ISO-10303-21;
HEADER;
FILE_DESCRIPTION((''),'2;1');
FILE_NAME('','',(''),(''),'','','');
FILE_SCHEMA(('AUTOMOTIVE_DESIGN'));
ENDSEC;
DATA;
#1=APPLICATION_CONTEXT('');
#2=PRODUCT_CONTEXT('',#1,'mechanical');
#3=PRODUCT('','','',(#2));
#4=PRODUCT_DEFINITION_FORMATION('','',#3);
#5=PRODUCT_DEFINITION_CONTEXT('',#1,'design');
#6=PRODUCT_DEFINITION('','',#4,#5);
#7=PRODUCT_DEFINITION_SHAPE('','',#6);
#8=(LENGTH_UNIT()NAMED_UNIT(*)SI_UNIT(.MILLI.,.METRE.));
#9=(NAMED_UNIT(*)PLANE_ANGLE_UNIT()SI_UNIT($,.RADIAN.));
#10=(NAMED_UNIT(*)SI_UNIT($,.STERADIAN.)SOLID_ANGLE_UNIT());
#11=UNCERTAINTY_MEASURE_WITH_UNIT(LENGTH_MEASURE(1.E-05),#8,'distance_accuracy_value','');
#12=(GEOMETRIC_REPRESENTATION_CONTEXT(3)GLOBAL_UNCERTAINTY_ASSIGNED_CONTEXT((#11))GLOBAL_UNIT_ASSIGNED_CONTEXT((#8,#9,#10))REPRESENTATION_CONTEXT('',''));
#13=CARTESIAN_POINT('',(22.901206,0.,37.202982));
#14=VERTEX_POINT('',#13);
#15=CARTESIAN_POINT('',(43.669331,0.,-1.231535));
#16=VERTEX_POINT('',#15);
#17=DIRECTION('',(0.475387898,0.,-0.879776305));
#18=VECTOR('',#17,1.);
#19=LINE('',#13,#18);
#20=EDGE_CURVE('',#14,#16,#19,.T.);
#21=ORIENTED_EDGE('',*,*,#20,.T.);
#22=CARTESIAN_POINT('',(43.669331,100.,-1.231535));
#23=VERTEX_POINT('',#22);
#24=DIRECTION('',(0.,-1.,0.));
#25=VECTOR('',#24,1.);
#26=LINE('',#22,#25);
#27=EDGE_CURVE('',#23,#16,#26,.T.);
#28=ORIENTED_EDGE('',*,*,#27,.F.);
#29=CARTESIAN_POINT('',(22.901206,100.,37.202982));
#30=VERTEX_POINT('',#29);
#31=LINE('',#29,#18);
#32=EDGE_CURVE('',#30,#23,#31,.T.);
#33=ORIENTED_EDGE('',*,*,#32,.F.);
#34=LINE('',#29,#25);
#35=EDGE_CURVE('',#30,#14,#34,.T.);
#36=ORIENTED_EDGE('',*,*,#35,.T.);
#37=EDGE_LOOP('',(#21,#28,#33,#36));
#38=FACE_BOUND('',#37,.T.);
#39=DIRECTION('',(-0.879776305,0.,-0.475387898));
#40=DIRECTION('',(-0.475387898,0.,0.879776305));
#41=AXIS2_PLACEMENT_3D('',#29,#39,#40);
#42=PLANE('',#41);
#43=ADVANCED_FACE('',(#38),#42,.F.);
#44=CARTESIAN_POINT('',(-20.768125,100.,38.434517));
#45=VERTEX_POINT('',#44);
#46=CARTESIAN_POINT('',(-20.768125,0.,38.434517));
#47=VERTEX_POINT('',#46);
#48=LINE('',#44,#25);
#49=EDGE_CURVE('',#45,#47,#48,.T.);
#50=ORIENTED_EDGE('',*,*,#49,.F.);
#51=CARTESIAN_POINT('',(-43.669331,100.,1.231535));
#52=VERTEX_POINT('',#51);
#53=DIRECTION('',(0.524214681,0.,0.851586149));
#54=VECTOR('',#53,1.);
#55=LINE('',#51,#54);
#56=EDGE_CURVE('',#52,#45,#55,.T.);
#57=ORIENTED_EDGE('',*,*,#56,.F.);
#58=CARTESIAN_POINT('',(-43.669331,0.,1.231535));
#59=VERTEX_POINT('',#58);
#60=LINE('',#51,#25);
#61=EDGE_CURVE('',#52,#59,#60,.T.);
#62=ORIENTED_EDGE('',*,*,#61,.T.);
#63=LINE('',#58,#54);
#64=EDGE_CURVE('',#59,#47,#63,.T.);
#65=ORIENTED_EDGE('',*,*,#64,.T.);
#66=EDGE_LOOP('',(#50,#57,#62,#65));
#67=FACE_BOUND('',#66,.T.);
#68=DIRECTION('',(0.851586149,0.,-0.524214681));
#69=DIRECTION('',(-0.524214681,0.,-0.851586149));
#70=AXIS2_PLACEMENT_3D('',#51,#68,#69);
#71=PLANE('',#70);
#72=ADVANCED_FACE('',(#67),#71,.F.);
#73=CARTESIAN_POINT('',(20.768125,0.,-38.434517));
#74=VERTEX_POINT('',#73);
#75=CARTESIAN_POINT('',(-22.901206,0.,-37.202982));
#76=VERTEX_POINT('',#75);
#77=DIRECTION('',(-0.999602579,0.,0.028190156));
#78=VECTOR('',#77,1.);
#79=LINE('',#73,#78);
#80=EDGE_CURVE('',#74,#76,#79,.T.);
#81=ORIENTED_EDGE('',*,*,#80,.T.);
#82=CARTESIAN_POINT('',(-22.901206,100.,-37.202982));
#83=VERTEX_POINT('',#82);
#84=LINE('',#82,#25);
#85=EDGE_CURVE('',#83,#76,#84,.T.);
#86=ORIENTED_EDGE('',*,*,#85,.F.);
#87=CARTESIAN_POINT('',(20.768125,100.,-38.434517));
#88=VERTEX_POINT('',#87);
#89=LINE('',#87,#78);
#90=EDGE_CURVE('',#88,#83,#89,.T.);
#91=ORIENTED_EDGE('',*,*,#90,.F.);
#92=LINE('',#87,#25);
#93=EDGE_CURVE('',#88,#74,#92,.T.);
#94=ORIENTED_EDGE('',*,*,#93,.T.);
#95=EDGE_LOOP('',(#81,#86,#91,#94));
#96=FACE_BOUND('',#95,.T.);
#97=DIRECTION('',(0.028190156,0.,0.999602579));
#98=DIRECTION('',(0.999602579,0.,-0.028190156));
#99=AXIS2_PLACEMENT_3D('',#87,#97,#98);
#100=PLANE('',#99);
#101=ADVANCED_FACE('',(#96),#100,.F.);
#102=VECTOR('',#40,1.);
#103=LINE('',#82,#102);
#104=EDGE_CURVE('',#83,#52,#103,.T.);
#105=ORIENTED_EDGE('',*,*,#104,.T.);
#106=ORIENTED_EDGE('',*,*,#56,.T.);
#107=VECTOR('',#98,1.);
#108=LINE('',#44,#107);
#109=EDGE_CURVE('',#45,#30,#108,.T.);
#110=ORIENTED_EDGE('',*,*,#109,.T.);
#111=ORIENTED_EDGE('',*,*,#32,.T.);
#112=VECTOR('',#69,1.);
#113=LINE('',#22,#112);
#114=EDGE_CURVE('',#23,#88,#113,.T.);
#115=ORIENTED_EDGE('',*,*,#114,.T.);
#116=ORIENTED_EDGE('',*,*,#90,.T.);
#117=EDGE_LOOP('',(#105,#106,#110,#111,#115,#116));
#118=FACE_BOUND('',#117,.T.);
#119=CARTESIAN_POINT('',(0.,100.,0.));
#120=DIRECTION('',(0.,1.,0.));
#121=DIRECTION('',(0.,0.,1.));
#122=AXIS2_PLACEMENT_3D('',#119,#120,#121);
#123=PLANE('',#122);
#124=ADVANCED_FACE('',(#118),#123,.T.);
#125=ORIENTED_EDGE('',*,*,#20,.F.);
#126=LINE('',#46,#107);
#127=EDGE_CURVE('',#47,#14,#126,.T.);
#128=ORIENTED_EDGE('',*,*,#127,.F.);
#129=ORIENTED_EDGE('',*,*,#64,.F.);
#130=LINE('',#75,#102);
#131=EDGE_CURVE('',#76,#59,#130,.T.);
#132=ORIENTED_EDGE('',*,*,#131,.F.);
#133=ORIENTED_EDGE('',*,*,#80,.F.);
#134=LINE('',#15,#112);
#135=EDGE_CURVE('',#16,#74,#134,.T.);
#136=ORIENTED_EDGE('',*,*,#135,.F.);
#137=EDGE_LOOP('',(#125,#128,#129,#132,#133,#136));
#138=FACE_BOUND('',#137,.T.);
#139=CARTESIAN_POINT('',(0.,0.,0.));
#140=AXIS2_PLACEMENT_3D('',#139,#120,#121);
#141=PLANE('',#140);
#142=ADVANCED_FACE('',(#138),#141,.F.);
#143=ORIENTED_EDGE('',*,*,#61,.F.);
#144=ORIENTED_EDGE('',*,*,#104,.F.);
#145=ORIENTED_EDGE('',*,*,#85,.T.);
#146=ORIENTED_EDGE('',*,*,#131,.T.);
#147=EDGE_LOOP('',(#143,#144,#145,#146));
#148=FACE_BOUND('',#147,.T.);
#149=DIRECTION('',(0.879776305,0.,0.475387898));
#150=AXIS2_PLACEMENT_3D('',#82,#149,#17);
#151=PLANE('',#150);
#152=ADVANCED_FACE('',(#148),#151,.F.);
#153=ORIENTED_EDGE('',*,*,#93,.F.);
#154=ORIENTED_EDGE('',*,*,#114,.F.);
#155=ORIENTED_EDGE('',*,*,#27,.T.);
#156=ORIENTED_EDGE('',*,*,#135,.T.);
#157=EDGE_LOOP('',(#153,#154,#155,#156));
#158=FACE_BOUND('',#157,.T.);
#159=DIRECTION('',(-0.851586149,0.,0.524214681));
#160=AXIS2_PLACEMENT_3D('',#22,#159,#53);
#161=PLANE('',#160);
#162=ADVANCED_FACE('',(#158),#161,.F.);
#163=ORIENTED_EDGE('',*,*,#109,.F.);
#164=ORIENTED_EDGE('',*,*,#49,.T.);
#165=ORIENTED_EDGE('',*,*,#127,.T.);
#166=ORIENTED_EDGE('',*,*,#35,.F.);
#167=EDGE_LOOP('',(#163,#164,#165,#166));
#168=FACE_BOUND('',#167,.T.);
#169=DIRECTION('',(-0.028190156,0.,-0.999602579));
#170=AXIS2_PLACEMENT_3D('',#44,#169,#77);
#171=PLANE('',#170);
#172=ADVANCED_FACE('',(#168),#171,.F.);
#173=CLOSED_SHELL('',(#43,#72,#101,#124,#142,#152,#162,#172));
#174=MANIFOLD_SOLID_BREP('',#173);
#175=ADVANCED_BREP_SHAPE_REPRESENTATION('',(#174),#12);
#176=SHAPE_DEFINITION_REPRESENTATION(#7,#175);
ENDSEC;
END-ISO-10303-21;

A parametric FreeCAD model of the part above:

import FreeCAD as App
import Part
import Sketcher

doc = App.newDocument("Part")
body = doc.addObject("PartDesign::Body", "Body")

# Sketch on XZ plane
sketch1 = body.newObject("Sketcher::SketchObject", "Sketch")
sketch1.AttachmentSupport = (doc.getObject("XZ_Plane"), [""])
sketch1.MapMode = "FlatFace"
sketch1.addGeometry([
    Part.LineSegment(App.Vector(20.768125, -38.434517, 0), App.Vector(-22.901206, -37.202982, 0)),  # 0
    Part.LineSegment(App.Vector(-22.901206, -37.202982, 0), App.Vector(-43.669331, 1.231535, 0)),  # 1
    Part.LineSegment(App.Vector(-43.669331, 1.231535, 0), App.Vector(-20.768125, 38.434517, 0)),  # 2
    Part.LineSegment(App.Vector(-20.768125, 38.434517, 0), App.Vector(22.901206, 37.202982, 0)),  # 3
    Part.LineSegment(App.Vector(22.901206, 37.202982, 0), App.Vector(43.669331, -1.231535, 0)),  # 4
    Part.LineSegment(App.Vector(43.669331, -1.231535, 0), App.Vector(20.768125, -38.434517, 0)),  # 5
], False)
sketch1.addConstraint([
    Sketcher.Constraint("Coincident", 0, 2, 1, 1),
    Sketcher.Constraint("Coincident", 1, 2, 2, 1),
    Sketcher.Constraint("Coincident", 2, 2, 3, 1),
    Sketcher.Constraint("Coincident", 3, 2, 4, 1),
    Sketcher.Constraint("Coincident", 4, 2, 5, 1),
    Sketcher.Constraint("Coincident", 5, 2, 0, 1),
    Sketcher.Constraint("Symmetric", 0, 2, 3, 2, -1, 1),
    Sketcher.Constraint("Symmetric", 1, 2, 4, 2, -1, 1),
    Sketcher.Constraint("Symmetric", 2, 2, 5, 2, -1, 1),
    Sketcher.Constraint("Equal", 0, 1),
    Sketcher.Constraint("Equal", 1, 2),
    Sketcher.Constraint("DistanceY", 0, 2, 2, 2, 75.6375),
    Sketcher.Constraint("DistanceX", 1, 2, -1, 1, 43.669331),
    Sketcher.Constraint("DistanceX", 0, 2, 2, 2, 2.133081),
    Sketcher.Constraint("DistanceX", 2, 2, 3, 2, 43.669331),
])
pad1 = body.newObject("PartDesign::Pad", "Pad")
pad1.Profile = sketch1
pad1.Length = 100
pad1.Reversed = True

doc.recompute()
